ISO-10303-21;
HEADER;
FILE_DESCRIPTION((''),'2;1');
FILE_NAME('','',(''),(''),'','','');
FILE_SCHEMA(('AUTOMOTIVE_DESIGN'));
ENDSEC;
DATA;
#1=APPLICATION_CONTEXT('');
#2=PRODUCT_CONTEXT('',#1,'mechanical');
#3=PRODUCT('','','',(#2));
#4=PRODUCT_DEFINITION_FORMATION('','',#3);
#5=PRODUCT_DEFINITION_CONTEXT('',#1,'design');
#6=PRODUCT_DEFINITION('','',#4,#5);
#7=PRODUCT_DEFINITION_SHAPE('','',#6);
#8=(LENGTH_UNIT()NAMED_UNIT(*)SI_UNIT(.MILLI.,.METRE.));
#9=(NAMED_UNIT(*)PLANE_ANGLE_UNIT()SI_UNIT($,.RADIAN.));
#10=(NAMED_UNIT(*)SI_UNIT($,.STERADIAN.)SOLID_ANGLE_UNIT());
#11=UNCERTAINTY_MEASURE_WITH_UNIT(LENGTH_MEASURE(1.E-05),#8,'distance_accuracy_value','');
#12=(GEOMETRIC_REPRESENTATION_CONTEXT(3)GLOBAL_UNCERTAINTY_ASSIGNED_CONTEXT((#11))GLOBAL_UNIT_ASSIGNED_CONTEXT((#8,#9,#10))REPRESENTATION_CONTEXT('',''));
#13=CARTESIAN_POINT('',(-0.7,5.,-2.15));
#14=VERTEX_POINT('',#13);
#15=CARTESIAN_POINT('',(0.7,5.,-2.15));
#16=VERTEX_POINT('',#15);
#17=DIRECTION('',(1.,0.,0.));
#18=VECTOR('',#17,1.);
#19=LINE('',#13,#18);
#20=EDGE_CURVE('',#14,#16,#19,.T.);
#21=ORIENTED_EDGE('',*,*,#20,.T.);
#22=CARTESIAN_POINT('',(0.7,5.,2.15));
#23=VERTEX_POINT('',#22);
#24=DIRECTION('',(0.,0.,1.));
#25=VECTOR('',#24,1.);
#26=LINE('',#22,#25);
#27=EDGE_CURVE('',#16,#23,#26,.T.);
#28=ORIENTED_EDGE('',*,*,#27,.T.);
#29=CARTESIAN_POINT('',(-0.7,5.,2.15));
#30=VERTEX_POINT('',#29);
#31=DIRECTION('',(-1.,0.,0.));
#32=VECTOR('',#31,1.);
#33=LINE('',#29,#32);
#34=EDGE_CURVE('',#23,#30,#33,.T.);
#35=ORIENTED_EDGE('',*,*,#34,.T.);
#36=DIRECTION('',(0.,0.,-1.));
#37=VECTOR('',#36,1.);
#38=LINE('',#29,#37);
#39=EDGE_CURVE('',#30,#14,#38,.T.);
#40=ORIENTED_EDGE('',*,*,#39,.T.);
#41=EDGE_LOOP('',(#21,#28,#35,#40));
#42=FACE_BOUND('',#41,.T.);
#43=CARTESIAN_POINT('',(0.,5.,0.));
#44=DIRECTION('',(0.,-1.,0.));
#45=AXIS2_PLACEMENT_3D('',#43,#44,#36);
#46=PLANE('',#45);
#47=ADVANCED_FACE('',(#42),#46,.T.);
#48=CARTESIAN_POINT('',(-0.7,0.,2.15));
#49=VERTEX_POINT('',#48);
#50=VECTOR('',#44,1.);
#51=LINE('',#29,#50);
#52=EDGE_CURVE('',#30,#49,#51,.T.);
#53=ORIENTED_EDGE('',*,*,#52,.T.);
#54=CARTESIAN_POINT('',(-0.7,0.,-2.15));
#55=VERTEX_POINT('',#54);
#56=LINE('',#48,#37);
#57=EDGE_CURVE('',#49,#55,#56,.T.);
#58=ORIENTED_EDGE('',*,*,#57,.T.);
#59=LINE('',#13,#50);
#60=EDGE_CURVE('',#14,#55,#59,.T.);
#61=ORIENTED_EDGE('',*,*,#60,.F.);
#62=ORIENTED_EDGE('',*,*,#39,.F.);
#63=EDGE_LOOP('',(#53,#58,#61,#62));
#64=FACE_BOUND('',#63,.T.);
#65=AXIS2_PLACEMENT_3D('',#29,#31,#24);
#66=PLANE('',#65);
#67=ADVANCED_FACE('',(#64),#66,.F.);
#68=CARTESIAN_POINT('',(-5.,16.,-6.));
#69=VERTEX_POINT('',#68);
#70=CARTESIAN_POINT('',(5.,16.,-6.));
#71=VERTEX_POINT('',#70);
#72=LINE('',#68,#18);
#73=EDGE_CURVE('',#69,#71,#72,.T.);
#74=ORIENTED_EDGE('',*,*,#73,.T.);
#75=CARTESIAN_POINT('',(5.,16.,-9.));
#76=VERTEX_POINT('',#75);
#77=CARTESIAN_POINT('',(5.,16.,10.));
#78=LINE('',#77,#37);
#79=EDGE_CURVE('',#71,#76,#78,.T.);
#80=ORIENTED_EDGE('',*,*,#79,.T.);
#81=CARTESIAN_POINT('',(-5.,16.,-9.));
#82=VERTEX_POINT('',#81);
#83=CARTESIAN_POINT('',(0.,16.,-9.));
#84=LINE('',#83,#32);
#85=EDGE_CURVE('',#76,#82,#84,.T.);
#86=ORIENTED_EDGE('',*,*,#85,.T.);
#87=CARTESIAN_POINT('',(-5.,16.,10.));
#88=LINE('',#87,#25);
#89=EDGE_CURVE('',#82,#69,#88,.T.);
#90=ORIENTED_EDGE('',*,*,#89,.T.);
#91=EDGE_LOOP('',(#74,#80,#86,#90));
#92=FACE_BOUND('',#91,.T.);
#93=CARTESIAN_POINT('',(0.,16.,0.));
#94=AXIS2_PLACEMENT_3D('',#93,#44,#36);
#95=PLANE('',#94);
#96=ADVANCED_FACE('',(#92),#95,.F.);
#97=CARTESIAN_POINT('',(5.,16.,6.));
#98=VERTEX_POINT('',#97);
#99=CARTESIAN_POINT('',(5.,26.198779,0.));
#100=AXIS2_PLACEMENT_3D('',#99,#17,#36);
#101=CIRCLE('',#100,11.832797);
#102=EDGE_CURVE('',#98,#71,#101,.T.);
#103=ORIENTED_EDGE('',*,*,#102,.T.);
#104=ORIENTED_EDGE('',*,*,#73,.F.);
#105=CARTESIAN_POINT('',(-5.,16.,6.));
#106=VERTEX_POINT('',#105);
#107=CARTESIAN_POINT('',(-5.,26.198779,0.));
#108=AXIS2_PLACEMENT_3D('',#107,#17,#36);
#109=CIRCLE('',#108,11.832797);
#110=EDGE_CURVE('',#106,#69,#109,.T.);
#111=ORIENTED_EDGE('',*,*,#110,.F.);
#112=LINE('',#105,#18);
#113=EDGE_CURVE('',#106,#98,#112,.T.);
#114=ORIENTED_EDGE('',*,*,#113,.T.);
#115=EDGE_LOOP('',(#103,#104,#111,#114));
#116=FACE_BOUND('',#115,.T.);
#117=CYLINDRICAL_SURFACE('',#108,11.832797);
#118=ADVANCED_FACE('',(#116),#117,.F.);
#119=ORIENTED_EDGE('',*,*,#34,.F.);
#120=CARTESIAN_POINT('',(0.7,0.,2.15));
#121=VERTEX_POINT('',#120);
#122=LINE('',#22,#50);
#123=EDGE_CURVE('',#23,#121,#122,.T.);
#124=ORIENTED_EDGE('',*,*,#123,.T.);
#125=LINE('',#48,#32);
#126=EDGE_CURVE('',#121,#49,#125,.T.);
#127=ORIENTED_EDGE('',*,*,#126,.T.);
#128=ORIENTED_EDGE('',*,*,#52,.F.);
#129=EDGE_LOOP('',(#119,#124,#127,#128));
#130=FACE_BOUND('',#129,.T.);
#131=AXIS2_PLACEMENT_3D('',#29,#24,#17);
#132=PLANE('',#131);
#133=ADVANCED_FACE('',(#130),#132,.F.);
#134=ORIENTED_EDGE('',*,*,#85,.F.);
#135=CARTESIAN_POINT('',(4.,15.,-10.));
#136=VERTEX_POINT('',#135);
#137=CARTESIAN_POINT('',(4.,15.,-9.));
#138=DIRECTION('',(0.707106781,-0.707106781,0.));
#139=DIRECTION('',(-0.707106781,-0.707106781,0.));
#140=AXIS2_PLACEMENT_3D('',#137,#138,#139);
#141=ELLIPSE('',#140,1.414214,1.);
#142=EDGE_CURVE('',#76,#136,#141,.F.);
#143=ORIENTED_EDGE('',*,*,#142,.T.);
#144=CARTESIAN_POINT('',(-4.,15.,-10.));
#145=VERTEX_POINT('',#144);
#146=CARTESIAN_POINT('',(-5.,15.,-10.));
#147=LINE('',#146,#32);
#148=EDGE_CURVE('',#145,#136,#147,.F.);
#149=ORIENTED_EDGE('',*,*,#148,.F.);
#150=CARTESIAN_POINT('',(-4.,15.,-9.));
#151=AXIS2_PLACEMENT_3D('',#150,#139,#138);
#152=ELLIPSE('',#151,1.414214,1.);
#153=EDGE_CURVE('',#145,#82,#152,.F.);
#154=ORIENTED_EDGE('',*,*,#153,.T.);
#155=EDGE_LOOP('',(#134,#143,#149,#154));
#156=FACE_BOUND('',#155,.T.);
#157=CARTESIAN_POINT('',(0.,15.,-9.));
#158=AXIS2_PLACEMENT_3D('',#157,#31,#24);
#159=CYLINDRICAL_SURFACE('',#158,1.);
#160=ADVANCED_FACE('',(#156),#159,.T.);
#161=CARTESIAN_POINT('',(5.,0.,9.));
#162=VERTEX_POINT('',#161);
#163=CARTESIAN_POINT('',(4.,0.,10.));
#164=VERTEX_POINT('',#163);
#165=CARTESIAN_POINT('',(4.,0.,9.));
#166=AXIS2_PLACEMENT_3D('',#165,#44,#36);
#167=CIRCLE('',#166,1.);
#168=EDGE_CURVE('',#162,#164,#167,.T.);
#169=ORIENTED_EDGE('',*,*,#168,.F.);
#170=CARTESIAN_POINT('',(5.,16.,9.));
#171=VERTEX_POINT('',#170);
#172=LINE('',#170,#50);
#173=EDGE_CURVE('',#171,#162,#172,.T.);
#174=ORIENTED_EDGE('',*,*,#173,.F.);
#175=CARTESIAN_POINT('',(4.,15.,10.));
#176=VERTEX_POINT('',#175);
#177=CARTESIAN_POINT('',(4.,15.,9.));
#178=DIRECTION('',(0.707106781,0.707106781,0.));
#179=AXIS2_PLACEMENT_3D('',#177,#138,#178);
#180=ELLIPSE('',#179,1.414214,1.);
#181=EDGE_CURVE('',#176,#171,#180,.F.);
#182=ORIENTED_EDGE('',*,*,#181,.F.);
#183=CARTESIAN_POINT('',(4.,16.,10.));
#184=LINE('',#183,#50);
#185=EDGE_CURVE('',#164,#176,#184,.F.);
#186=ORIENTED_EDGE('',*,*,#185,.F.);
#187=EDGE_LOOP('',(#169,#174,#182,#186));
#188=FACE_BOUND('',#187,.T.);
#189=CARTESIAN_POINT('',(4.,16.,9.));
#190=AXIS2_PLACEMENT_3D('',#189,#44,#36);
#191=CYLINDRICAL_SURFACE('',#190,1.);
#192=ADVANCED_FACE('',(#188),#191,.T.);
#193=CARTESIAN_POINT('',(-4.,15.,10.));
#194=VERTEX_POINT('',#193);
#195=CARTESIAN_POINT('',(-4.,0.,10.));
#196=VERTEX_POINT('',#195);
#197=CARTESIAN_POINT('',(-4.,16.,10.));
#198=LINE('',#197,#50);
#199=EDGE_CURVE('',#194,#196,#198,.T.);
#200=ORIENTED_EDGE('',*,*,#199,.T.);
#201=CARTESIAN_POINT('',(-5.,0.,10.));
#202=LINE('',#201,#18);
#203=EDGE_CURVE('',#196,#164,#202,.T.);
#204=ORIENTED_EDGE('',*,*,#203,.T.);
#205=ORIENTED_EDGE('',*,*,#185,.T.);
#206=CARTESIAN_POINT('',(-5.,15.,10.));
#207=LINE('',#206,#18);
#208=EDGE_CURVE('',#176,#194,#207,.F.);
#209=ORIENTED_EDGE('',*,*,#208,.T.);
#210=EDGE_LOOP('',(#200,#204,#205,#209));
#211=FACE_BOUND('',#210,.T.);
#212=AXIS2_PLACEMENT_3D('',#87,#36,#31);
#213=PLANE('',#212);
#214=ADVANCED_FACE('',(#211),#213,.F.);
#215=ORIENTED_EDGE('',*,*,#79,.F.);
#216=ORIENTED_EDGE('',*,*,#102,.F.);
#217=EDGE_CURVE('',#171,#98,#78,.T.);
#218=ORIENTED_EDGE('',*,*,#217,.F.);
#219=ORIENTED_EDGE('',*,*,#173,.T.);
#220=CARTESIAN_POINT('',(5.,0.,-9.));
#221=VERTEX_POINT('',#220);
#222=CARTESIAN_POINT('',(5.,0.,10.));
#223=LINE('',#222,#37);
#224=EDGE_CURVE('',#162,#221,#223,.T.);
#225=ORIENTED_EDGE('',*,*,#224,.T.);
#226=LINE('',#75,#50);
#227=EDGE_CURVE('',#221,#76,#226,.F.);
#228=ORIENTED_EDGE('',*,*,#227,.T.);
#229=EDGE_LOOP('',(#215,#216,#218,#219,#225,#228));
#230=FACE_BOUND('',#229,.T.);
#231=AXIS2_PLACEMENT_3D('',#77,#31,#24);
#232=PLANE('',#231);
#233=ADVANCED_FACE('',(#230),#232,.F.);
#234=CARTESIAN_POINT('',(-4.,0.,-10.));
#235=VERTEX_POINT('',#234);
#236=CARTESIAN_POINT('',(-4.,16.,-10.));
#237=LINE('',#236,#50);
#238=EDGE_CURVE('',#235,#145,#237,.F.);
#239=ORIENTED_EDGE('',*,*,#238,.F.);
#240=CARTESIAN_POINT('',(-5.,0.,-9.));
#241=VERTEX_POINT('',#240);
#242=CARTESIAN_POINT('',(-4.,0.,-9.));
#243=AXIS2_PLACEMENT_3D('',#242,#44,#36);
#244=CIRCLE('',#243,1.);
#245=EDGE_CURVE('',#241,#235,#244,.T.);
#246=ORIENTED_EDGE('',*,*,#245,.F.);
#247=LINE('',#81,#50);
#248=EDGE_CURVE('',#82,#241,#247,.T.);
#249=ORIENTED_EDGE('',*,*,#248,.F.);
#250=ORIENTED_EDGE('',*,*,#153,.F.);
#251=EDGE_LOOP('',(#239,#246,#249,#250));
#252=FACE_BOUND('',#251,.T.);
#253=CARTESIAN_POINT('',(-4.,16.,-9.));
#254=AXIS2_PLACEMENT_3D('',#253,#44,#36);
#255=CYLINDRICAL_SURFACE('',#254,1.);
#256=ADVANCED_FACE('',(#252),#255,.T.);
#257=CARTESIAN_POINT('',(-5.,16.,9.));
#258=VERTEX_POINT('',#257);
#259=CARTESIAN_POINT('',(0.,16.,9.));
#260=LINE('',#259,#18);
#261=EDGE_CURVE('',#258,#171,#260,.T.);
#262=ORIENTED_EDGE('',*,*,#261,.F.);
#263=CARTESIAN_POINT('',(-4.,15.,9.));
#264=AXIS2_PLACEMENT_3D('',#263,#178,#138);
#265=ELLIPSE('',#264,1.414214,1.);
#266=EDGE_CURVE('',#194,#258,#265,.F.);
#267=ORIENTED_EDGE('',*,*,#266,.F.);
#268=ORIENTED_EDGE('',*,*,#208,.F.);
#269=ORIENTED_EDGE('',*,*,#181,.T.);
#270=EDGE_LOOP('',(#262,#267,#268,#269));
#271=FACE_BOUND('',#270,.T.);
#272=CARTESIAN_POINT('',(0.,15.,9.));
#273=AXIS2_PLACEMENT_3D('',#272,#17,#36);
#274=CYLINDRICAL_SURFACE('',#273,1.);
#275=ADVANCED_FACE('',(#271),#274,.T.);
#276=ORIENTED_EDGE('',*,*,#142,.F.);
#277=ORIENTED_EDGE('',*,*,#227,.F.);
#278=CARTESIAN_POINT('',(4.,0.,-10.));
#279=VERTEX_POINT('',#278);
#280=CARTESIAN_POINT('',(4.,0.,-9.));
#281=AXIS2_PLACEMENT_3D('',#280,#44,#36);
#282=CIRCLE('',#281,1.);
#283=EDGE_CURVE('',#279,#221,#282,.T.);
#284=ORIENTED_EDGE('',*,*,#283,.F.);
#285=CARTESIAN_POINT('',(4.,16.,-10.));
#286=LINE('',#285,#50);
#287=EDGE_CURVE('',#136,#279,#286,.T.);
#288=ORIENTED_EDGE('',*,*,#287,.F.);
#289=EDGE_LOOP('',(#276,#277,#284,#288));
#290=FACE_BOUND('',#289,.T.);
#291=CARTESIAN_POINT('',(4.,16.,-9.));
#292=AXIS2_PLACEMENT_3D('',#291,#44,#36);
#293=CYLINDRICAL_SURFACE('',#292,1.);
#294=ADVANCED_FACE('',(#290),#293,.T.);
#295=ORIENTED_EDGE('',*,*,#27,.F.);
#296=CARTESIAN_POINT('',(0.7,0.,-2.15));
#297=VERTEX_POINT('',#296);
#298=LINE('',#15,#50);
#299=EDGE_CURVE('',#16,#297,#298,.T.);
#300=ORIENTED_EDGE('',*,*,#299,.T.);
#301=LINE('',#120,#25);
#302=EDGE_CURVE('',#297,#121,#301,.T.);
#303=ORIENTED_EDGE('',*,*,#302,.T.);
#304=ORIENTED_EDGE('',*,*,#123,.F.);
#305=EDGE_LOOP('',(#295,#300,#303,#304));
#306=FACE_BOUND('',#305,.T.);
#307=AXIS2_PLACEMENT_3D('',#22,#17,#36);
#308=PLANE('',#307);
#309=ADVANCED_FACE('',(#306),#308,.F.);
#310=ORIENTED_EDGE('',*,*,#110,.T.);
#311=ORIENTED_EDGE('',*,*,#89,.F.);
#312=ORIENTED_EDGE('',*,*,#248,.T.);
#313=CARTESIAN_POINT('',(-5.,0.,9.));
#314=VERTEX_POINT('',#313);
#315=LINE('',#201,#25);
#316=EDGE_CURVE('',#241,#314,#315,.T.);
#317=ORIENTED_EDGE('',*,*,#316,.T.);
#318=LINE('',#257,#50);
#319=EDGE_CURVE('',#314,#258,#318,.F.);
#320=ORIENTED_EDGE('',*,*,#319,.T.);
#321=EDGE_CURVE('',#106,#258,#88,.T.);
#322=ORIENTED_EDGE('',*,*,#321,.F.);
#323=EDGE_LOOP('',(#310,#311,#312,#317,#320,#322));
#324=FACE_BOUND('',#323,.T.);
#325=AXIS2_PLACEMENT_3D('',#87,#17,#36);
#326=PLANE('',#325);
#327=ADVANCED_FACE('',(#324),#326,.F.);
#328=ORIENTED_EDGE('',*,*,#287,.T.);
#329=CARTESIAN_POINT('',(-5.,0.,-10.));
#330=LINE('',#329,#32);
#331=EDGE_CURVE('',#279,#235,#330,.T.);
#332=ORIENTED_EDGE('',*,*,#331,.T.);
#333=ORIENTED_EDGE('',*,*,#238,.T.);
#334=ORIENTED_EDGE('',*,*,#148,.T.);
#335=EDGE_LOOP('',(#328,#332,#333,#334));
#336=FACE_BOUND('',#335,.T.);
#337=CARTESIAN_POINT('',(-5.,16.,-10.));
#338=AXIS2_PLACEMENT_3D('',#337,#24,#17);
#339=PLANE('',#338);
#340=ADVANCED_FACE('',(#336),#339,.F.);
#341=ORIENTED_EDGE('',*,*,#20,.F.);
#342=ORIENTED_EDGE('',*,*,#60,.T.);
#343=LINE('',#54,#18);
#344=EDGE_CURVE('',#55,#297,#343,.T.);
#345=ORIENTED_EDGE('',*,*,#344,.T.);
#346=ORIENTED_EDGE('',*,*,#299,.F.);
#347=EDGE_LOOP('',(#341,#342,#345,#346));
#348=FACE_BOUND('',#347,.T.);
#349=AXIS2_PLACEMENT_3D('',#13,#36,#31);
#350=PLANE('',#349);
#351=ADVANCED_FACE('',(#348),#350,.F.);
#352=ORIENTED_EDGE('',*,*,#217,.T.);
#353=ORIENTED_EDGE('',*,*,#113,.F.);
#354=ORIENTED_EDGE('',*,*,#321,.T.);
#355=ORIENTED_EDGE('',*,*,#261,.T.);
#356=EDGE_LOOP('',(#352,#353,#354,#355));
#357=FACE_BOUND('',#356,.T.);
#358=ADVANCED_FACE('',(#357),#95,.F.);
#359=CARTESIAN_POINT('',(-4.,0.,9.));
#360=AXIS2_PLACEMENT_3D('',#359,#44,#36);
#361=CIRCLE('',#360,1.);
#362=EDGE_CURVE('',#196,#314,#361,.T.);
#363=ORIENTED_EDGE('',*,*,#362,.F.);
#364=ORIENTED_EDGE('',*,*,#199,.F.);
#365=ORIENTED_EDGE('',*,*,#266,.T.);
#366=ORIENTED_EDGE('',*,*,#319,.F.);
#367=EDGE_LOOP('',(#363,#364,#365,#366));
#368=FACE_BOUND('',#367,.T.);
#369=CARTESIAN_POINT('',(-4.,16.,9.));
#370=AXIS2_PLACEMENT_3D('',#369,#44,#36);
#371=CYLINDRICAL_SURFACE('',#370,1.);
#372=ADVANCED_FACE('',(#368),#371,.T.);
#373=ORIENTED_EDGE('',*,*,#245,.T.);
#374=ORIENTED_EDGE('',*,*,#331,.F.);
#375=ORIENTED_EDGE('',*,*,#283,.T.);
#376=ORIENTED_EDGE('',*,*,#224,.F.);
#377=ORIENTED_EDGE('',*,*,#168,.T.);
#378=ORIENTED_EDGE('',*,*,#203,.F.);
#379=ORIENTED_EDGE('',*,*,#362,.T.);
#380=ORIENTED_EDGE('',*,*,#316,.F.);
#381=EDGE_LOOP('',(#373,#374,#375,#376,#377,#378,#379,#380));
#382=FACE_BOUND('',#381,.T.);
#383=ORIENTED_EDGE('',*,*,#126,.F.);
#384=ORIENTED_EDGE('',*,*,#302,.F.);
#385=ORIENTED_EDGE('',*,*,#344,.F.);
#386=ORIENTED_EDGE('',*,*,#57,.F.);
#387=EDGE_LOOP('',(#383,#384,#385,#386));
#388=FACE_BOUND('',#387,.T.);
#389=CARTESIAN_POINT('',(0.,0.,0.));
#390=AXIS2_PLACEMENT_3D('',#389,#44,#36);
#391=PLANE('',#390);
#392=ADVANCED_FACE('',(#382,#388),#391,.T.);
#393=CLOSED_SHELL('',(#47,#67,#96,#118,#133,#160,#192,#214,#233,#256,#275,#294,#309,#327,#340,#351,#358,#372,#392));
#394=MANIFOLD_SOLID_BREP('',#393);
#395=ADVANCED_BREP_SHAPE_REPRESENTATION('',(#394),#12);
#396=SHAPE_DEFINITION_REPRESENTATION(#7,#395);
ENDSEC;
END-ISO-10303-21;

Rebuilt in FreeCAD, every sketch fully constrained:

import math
import FreeCAD as App
import Part
import Sketcher

V = App.Vector
Q = App.Units.Quantity


def edges_at(feature, points):
    """Names of the edges that pass closest to the given points."""
    edges = feature.Shape.Edges
    near = lambda p: min(range(len(edges)), key=lambda i: edges[i].distToShape(Part.Vertex(*p))[0])
    return sorted({f"Edge{near(p) + 1}" for p in points})

doc = App.newDocument("Part")
body = doc.addObject("PartDesign::Body", "Body")

# Sketch on XZ plane
sketch1 = body.newObject("Sketcher::SketchObject", "Sketch")
sketch1.AttachmentSupport = (doc.getObject("XZ_Plane"), [""])
sketch1.MapMode = "FlatFace"
sketch1.addGeometry(Part.LineSegment(V(-5, -10, 0), V(-5, 10, 0)), False)
sketch1.addGeometry(Part.LineSegment(V(-5, 10, 0), V(5, 10, 0)), False)
sketch1.addGeometry(Part.LineSegment(V(5, 10, 0), V(5, -10, 0)), False)
sketch1.addGeometry(Part.LineSegment(V(5, -10, 0), V(-5, -10, 0)), False)
sketch1.addConstraint(Sketcher.Constraint("Coincident", 0, 2, 1, 1))
sketch1.addConstraint(Sketcher.Constraint("Coincident", 1, 2, 2, 1))
sketch1.addConstraint(Sketcher.Constraint("Coincident", 2, 2, 3, 1))
sketch1.addConstraint(Sketcher.Constraint("Coincident", 3, 2, 0, 1))
sketch1.addConstraint(Sketcher.Constraint("Vertical", 0))
sketch1.addConstraint(Sketcher.Constraint("Horizontal", 1))
sketch1.addConstraint(Sketcher.Constraint("Vertical", 2))
sketch1.addConstraint(Sketcher.Constraint("Horizontal", 3))
sketch1.addConstraint(Sketcher.Constraint("Symmetric", 0, 2, 2, 2, -1, 1))
sketch1.addConstraint(Sketcher.Constraint("DistanceX", 1, 1, 1, 2, Q("10 mm")))
sketch1.addConstraint(Sketcher.Constraint("DistanceY", 0, 1, 0, 2, Q("20 mm")))
pad1 = body.newObject("PartDesign::Pad", "Pad")
pad1.Profile = sketch1
pad1.Length = 16
pad1.Reversed = True

# Sketch on XZ plane
sketch2 = body.newObject("Sketcher::SketchObject", "Sketch001")
sketch2.AttachmentSupport = (doc.getObject("XZ_Plane"), [""])
sketch2.MapMode = "FlatFace"
sketch2.addGeometry(Part.LineSegment(V(-0.7, 2.1, 0), V(-0.7, -2.1, 0)), False)
sketch2.addGeometry(Part.LineSegment(V(-0.7, -2.1, 0), V(0.7, -2.1, 0)), False)
sketch2.addGeometry(Part.LineSegment(V(0.7, -2.1, 0), V(0.7, 2.1, 0)), False)
sketch2.addGeometry(Part.LineSegment(V(0.7, 2.1, 0), V(-0.7, 2.1, 0)), False)
sketch2.addConstraint(Sketcher.Constraint("Coincident", 0, 2, 1, 1))
sketch2.addConstraint(Sketcher.Constraint("Coincident", 1, 2, 2, 1))
sketch2.addConstraint(Sketcher.Constraint("Coincident", 2, 2, 3, 1))
sketch2.addConstraint(Sketcher.Constraint("Coincident", 3, 2, 0, 1))
sketch2.addConstraint(Sketcher.Constraint("Vertical", 0))
sketch2.addConstraint(Sketcher.Constraint("Horizontal", 1))
sketch2.addConstraint(Sketcher.Constraint("Vertical", 2))
sketch2.addConstraint(Sketcher.Constraint("Horizontal", 3))
sketch2.addConstraint(Sketcher.Constraint("Symmetric", 0, 2, 2, 2, -1, 1))
sketch2.addConstraint(Sketcher.Constraint("DistanceX", 1, 1, 1, 2, Q("1.4 mm")))
sketch2.addConstraint(Sketcher.Constraint("DistanceY", 0, 2, 0, 1, Q("4.3 mm")))
pocket1 = body.newObject("PartDesign::Pocket", "Pocket")
pocket1.Profile = sketch2
pocket1.Length = 5

# Sketch on YZ plane
sketch3 = body.newObject("Sketcher::SketchObject", "Sketch002")
sketch3.AttachmentSupport = (doc.getObject("YZ_Plane"), [""])
sketch3.MapMode = "FlatFace"
sketch3.AttachmentOffset = App.Placement(V(0, 0, 5), App.Rotation())
sketch3.addGeometry(Part.LineSegment(V(16, -6, 0), V(16, 6, 0)), False)
sketch3.addGeometry(Part.ArcOfCircle(Part.Circle(V(26, 0, 0), V(0, 0, 1), 12), math.radians(150), math.radians(210)), False)
sketch3.addConstraint(Sketcher.Constraint("Coincident", 0, 1, 1, 2))
sketch3.addConstraint(Sketcher.Constraint("Coincident", 1, 1, 0, 2))
sketch3.addConstraint(Sketcher.Constraint("Vertical", 0))
sketch3.addConstraint(Sketcher.Constraint("PointOnObject", 1, 3, -1))
sketch3.addConstraint(Sketcher.Constraint("DistanceY", 0, 1, 0, 2, Q("12 mm")))
sketch3.addConstraint(Sketcher.Constraint("DistanceX", -1, 1, 0, 1, Q("16 mm")))
sketch3.addConstraint(Sketcher.Constraint("Radius", 1, Q("11.832797 mm")))
pocket2 = body.newObject("PartDesign::Pocket", "Pocket001")
pocket2.Profile = sketch3
pocket2.Length = 10
doc.recompute()

fillet = body.newObject("PartDesign::Fillet", "Fillet")
fillet.Base = (pocket2, edges_at(pocket2, [
    (0, 16, 10),
    (5, 8, 10),
    (-5, 8, 10),
    (-5, 8, -10),
    (5, 8, -10),
    (0, 16, -10),
]))
fillet.Radius = 1

doc.recompute()
